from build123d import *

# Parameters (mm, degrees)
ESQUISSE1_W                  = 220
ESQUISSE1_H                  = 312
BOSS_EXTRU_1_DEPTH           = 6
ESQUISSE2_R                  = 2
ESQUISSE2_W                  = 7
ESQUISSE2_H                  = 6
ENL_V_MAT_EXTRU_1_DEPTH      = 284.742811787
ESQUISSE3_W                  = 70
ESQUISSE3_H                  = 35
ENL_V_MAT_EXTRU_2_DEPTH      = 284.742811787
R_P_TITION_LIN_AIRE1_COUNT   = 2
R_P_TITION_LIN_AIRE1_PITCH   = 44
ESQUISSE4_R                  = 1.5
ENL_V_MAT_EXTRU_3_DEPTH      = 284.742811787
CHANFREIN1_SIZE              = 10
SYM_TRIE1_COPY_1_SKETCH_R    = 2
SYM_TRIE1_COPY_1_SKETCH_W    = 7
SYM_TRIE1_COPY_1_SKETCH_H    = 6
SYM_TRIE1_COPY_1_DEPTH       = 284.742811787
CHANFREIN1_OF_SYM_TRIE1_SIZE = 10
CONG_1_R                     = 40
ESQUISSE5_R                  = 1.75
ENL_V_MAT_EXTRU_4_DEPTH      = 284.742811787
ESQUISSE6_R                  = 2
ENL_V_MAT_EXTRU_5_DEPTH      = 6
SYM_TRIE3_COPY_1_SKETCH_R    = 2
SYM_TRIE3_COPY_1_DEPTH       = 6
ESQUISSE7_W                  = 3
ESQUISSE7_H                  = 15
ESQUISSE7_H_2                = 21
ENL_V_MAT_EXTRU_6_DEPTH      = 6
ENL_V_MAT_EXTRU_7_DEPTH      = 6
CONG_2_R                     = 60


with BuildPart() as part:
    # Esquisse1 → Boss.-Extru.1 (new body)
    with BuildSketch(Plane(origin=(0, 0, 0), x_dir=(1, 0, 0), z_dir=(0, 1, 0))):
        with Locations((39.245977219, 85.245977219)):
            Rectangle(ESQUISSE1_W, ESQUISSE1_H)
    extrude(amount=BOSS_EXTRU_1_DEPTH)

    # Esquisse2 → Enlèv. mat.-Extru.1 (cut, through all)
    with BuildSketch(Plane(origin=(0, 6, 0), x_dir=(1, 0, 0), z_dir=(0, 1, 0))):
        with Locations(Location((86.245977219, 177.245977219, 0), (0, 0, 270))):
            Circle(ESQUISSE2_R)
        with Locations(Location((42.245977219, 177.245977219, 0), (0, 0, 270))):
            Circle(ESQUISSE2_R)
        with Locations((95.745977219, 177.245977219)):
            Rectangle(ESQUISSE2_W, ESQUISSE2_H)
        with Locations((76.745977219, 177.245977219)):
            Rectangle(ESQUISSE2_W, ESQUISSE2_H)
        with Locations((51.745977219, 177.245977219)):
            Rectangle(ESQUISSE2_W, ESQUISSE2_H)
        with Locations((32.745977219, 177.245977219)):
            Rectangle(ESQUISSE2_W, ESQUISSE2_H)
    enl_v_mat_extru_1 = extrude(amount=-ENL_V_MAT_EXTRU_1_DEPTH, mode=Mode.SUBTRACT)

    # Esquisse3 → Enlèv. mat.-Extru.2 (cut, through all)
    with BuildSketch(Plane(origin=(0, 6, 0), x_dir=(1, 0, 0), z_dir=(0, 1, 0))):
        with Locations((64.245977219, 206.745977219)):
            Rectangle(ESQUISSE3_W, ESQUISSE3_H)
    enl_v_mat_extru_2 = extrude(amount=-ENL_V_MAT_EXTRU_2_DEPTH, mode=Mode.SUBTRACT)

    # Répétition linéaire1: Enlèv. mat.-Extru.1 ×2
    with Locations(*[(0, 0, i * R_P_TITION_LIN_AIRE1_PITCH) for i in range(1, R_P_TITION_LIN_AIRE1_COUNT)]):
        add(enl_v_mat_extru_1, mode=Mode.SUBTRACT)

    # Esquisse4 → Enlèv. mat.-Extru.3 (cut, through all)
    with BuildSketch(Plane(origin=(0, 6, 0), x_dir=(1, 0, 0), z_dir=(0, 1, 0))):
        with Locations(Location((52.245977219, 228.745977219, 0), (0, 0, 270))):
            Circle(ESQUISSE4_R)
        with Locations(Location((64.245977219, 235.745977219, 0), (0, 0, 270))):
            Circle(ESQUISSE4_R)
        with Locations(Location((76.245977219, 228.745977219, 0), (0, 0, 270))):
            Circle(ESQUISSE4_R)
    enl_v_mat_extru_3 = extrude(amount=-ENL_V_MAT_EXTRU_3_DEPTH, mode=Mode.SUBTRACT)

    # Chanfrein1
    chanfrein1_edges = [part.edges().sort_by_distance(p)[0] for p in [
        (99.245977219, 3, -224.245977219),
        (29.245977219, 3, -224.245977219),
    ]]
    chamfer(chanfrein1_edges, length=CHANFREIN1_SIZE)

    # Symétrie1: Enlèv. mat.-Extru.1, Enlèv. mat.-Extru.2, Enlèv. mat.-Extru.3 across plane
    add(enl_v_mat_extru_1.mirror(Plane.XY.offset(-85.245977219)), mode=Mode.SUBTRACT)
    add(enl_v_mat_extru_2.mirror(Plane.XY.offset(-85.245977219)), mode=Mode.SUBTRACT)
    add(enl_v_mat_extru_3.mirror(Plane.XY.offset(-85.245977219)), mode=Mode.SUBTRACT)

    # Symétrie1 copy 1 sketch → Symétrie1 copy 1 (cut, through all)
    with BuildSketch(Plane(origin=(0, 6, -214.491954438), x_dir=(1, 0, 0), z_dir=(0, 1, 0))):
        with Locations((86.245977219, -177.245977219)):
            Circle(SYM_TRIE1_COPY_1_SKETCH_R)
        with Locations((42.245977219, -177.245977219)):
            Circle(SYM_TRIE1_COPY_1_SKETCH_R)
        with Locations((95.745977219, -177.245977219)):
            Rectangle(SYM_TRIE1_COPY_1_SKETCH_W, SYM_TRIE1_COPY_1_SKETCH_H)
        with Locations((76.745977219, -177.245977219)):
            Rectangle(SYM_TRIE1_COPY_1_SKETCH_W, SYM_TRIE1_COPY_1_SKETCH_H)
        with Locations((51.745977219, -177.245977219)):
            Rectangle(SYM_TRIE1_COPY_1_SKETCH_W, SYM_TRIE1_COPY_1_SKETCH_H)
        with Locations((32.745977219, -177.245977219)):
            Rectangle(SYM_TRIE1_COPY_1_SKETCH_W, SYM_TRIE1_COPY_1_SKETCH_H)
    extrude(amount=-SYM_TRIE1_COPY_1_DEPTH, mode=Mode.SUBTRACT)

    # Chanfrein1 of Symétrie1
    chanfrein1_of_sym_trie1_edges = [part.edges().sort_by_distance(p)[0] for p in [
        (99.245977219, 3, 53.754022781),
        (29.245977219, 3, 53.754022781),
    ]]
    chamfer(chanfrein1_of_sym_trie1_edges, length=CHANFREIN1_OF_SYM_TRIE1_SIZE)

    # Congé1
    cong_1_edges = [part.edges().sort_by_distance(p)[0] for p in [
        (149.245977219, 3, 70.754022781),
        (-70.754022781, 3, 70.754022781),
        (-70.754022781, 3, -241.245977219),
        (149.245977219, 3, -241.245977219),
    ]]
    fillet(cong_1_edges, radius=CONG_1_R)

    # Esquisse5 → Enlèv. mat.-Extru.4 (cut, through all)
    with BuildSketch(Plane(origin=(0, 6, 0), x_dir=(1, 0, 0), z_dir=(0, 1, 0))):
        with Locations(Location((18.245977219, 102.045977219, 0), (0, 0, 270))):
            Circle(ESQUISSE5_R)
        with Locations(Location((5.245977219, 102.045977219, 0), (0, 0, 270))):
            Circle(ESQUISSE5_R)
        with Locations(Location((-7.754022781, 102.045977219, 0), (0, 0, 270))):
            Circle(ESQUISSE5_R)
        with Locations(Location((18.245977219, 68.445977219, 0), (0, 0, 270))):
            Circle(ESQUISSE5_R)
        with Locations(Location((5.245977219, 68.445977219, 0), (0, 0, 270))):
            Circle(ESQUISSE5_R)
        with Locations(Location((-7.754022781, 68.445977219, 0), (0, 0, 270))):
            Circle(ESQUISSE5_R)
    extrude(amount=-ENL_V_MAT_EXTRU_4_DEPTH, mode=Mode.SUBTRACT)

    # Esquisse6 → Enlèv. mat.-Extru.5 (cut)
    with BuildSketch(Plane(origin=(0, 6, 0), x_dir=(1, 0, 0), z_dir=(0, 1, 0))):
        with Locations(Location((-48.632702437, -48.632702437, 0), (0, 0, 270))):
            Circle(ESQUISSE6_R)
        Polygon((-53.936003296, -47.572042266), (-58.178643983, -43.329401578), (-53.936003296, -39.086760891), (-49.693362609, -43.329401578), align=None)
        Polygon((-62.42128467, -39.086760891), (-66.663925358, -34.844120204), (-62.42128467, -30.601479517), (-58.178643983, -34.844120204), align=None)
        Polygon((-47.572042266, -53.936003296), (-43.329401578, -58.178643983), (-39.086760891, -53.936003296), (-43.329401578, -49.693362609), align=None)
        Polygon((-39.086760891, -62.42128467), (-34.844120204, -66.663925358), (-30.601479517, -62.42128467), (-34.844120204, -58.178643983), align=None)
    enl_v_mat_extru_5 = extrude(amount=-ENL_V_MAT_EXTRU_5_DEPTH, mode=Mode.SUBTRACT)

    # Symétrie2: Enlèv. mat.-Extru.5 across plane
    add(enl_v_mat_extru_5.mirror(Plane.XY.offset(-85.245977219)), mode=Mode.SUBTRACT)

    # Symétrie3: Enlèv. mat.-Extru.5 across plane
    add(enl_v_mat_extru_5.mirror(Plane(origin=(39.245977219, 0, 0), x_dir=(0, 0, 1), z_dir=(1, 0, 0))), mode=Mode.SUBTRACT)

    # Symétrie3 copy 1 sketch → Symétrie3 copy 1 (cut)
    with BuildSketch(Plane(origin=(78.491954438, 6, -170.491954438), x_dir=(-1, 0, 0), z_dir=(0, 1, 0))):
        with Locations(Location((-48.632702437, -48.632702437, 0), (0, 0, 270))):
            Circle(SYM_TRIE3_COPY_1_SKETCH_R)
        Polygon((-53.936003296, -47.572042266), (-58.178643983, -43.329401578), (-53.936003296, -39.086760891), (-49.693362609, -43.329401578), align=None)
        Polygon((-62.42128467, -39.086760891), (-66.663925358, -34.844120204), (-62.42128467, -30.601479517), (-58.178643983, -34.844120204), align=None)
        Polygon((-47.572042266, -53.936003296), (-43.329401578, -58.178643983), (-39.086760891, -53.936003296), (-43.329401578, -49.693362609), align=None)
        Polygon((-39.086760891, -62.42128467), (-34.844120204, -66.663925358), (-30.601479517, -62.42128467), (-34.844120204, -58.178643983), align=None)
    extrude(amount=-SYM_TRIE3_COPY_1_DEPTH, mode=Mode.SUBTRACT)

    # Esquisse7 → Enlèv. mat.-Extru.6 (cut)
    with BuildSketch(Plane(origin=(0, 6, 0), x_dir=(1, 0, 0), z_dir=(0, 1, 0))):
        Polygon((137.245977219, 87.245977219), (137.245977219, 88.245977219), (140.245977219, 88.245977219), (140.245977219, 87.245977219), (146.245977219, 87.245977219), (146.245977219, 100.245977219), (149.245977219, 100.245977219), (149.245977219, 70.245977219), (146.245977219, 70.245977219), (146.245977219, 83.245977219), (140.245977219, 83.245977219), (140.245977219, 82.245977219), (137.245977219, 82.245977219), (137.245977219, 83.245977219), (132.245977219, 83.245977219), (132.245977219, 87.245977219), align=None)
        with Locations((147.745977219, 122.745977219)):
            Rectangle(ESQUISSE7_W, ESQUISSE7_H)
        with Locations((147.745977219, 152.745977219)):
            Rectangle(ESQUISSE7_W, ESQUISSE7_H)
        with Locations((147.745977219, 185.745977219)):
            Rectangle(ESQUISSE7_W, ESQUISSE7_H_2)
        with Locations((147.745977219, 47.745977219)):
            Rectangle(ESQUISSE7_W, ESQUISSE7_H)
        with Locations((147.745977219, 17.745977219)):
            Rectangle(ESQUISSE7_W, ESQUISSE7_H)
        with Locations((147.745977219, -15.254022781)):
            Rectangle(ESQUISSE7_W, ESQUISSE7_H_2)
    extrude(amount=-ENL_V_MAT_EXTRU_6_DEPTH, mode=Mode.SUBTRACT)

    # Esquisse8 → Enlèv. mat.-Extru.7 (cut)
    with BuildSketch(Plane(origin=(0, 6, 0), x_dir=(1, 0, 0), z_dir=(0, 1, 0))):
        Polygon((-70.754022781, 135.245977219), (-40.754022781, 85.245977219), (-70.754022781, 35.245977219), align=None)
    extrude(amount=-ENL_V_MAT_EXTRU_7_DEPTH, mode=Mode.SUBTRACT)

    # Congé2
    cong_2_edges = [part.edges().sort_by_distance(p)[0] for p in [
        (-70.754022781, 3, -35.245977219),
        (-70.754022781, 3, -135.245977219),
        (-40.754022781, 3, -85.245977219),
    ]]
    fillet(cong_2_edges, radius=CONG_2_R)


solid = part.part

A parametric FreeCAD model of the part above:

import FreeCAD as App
import Part
import Sketcher
from FreeCAD import Vector
Q = App.Units.Quantity


def edges_at(feature, points):
    """Names of the edges that pass closest to the given points."""
    edges = feature.Shape.Edges
    near = lambda p: min(range(len(edges)), key=lambda i: edges[i].distToShape(Part.Vertex(*p))[0])
    return sorted({f"Edge{near(p) + 1}" for p in points})

doc = App.newDocument("Part")
body = doc.addObject("PartDesign::Body", "Body")

sketch1 = body.newObject("Sketcher::SketchObject", "Sketch")
sketch1.AttachmentSupport = (doc.getObject("XZ_Plane"), [""])
sketch1.MapMode = "FlatFace"
sketch1.addGeometry([
    Part.LineSegment(Vector(-71, -241, 0), Vector(-71, 71, 0)),
    Part.LineSegment(Vector(-71, 71, 0), Vector(149, 71, 0)),
    Part.LineSegment(Vector(149, 71, 0), Vector(149, -241, 0)),
    Part.LineSegment(Vector(149, -241, 0), Vector(-71, -241, 0)),
], False)
sketch1.addConstraint([
    Sketcher.Constraint("Coincident", 0, 2, 1, 1),
    Sketcher.Constraint("Coincident", 1, 2, 2, 1),
    Sketcher.Constraint("Coincident", 2, 2, 3, 1),
    Sketcher.Constraint("Coincident", 3, 2, 0, 1),
    Sketcher.Constraint("Vertical", 0),
    Sketcher.Constraint("Horizontal", 1),
    Sketcher.Constraint("Vertical", 2),
    Sketcher.Constraint("Horizontal", 3),
    Sketcher.Constraint("DistanceX", 1, 1, 1, 2, Q("220 mm")),
    Sketcher.Constraint("DistanceY", 0, 1, 0, 2, Q("312 mm")),
    Sketcher.Constraint("DistanceX", 0, 2, -1, 1, Q("70.754023 mm")),
    Sketcher.Constraint("DistanceY", -1, 1, 0, 2, Q("70.754023 mm")),
])
pad1 = body.newObject("PartDesign::Pad", "Pad")
pad1.Profile = sketch1
pad1.Length = 6
pad1.Reversed = True

sketch2 = body.newObject("Sketcher::SketchObject", "Sketch001")
sketch2.AttachmentSupport = (doc.getObject("XZ_Plane"), [""])
sketch2.MapMode = "FlatFace"
sketch2.AttachmentOffset = App.Placement(Vector(0, 0, -6), App.Rotation())
sketch2.addGeometry([
    Part.Circle(Vector(86.2, -177.2, 0), Vector(0, 0, 1), 2),
    Part.Circle(Vector(42.2, -177.2, 0), Vector(0, 0, 1), 2),
    Part.LineSegment(Vector(92.2, -180.2, 0), Vector(92.2, -174.2, 0)),
    Part.LineSegment(Vector(92.2, -174.2, 0), Vector(99.2, -174.2, 0)),
    Part.LineSegment(Vector(99.2, -174.2, 0), Vector(99.2, -180.2, 0)),
    Part.LineSegment(Vector(99.2, -180.2, 0), Vector(92.2, -180.2, 0)),
    Part.LineSegment(Vector(73.2, -180.2, 0), Vector(73.2, -174.2, 0)),
    Part.LineSegment(Vector(73.2, -174.2, 0), Vector(80.2, -174.2, 0)),
    Part.LineSegment(Vector(80.2, -174.2, 0), Vector(80.2, -180.2, 0)),
    Part.LineSegment(Vector(80.2, -180.2, 0), Vector(73.2, -180.2, 0)),
    Part.LineSegment(Vector(48.2, -180.2, 0), Vector(48.2, -174.2, 0)),
    Part.LineSegment(Vector(48.2, -174.2, 0), Vector(55.2, -174.2, 0)),
    Part.LineSegment(Vector(55.2, -174.2, 0), Vector(55.2, -180.2, 0)),
    Part.LineSegment(Vector(55.2, -180.2, 0), Vector(48.2, -180.2, 0)),
    Part.LineSegment(Vector(29.2, -180.2, 0), Vector(29.2, -174.2, 0)),
    Part.LineSegment(Vector(29.2, -174.2, 0), Vector(36.2, -174.2, 0)),
    Part.LineSegment(Vector(36.2, -174.2, 0), Vector(36.2, -180.2, 0)),
    Part.LineSegment(Vector(36.2, -180.2, 0), Vector(29.2, -180.2, 0)),
], False)
sketch2.addConstraint([
    Sketcher.Constraint("Coincident", 2, 2, 3, 1),
    Sketcher.Constraint("Coincident", 3, 2, 4, 1),
    Sketcher.Constraint("Coincident", 4, 2, 5, 1),
    Sketcher.Constraint("Coincident", 5, 2, 2, 1),
    Sketcher.Constraint("Coincident", 6, 2, 7, 1),
    Sketcher.Constraint("Coincident", 7, 2, 8, 1),
    Sketcher.Constraint("Coincident", 8, 2, 9, 1),
    Sketcher.Constraint("Coincident", 9, 2, 6, 1),
    Sketcher.Constraint("Coincident", 10, 2, 11, 1),
    Sketcher.Constraint("Coincident", 11, 2, 12, 1),
    Sketcher.Constraint("Coincident", 12, 2, 13, 1),
    Sketcher.Constraint("Coincident", 13, 2, 10, 1),
    Sketcher.Constraint("Coincident", 14, 2, 15, 1),
    Sketcher.Constraint("Coincident", 15, 2, 16, 1),
    Sketcher.Constraint("Coincident", 16, 2, 17, 1),
    Sketcher.Constraint("Coincident", 17, 2, 14, 1),
    Sketcher.Constraint("Vertical", 2),
    Sketcher.Constraint("Horizontal", 3),
    Sketcher.Constraint("Vertical", 4),
    Sketcher.Constraint("Horizontal", 5),
    Sketcher.Constraint("Vertical", 6),
    Sketcher.Constraint("Horizontal", 7),
    Sketcher.Constraint("Vertical", 8),
    Sketcher.Constraint("Horizontal", 9),
    Sketcher.Constraint("Vertical", 10),
    Sketcher.Constraint("Horizontal", 11),
    Sketcher.Constraint("Vertical", 12),
    Sketcher.Constraint("Horizontal", 13),
    Sketcher.Constraint("Vertical", 14),
    Sketcher.Constraint("Horizontal", 15),
    Sketcher.Constraint("Vertical", 16),
    Sketcher.Constraint("Horizontal", 17),
    Sketcher.Constraint("Equal", 0, 1),
    Sketcher.Constraint("Horizontal", 0, 3, 1, 3),
    Sketcher.Constraint("Horizontal", 3, 2, 6, 2),
    Sketcher.Constraint("Horizontal", 5, 2, 8, 2),
    Sketcher.Constraint("Horizontal", 7, 2, 10, 2),
    Sketcher.Constraint("Horizontal", 9, 2, 12, 2),
    Sketcher.Constraint("Horizontal", 11, 2, 14, 2),
    Sketcher.Constraint("Horizontal", 13, 2, 16, 2),
    Sketcher.Constraint("Equal", 5, 7),
    Sketcher.Constraint("Equal", 9, 11),
    Sketcher.Constraint("Equal", 13, 15),
    Sketcher.Constraint("Diameter", 0, Q("4 mm")),
    Sketcher.Constraint("DistanceX", 3, 1, 3, 2, Q("7 mm")),
    Sketcher.Constraint("DistanceY", 2, 1, 2, 2, Q("6 mm")),
    Sketcher.Constraint("DistanceX", 1, 3, 0, 3, Q("44 mm")),
    Sketcher.Constraint("DistanceX", 0, 3, 2, 2, Q("6 mm")),
    Sketcher.Constraint("DistanceY", 0, 3, 2, 2, Q("3 mm")),
    Sketcher.Constraint("DistanceX", 6, 2, 0, 3, Q("13 mm")),
    Sketcher.Constraint("DistanceX", 1, 3, 10, 2, Q("6 mm")),
    Sketcher.Constraint("DistanceX", 14, 2, 1, 3, Q("13 mm")),
    Sketcher.Constraint("DistanceX", -1, 1, 0, 3, Q("86.245977 mm")),
    Sketcher.Constraint("DistanceY", 0, 3, -1, 1, Q("177.245977 mm")),
])
pocket1 = body.newObject("PartDesign::Pocket", "Pocket")
pocket1.Profile = sketch2
pocket1.Type = "ThroughAll"
pocket1.Reversed = True

sketch3 = body.newObject("Sketcher::SketchObject", "Sketch002")
sketch3.AttachmentSupport = (doc.getObject("XZ_Plane"), [""])
sketch3.MapMode = "FlatFace"
sketch3.AttachmentOffset = App.Placement(Vector(0, 0, -6), App.Rotation())
sketch3.addGeometry([
    Part.LineSegment(Vector(29, -224, 0), Vector(29, -189, 0)),
    Part.LineSegment(Vector(29, -189, 0), Vector(99, -189, 0)),
    Part.LineSegment(Vector(99, -189, 0), Vector(99, -224, 0)),
    Part.LineSegment(Vector(99, -224, 0), Vector(29, -224, 0)),
], False)
sketch3.addConstraint([
    Sketcher.Constraint("Coincident", 0, 2, 1, 1),
    Sketcher.Constraint("Coincident", 1, 2, 2, 1),
    Sketcher.Constraint("Coincident", 2, 2, 3, 1),
    Sketcher.Constraint("Coincident", 3, 2, 0, 1),
    Sketcher.Constraint("Vertical", 0),
    Sketcher.Constraint("Horizontal", 1),
    Sketcher.Constraint("Vertical", 2),
    Sketcher.Constraint("Horizontal", 3),
    Sketcher.Constraint("DistanceX", 1, 1, 1, 2, Q("70 mm")),
    Sketcher.Constraint("DistanceY", 0, 1, 0, 2, Q("35 mm")),
    Sketcher.Constraint("DistanceX", -1, 1, 0, 2, Q("29.245977 mm")),
    Sketcher.Constraint("DistanceY", 0, 2, -1, 1, Q("189.245977 mm")),
])
pocket2 = body.newObject("PartDesign::Pocket", "Pocket001")
pocket2.Profile = sketch3
pocket2.Type = "ThroughAll"
pocket2.Reversed = True
doc.recompute()

linearpattern = body.newObject("PartDesign::LinearPattern", "LinearPattern")
linearpattern.Originals = [pocket1]
linearpattern.Direction = (doc.getObject("Z_Axis"), [""])
linearpattern.Mode = "offset"
linearpattern.Offset = 44
linearpattern.Occurrences = 2
body.Tip = linearpattern

sketch4 = body.newObject("Sketcher::SketchObject", "Sketch003")
sketch4.AttachmentSupport = (doc.getObject("XZ_Plane"), [""])
sketch4.MapMode = "FlatFace"
sketch4.AttachmentOffset = App.Placement(Vector(0, 0, -6), App.Rotation())
sketch4.addGeometry([
    Part.Circle(Vector(52.2, -228.7, 0), Vector(0, 0, 1), 1.5),
    Part.Circle(Vector(64.2, -235.7, 0), Vector(0, 0, 1), 1.5),
    Part.Circle(Vector(76.2, -228.7, 0), Vector(0, 0, 1), 1.5),
], False)
sketch4.addConstraint([
    Sketcher.Constraint("Equal", 0, 1),
    Sketcher.Constraint("Equal", 1, 2),
    Sketcher.Constraint("Horizontal", 0, 3, 2, 3),
    Sketcher.Constraint("Diameter", 0, Q("3 mm")),
    Sketcher.Constraint("DistanceX", 0, 3, 1, 3, Q("12 mm")),
    Sketcher.Constraint("DistanceY", 1, 3, 0, 3, Q("7 mm")),
    Sketcher.Constraint("DistanceX", 1, 3, 2, 3, Q("12 mm")),
    Sketcher.Constraint("DistanceX", -1, 1, 0, 3, Q("52.245977 mm")),
    Sketcher.Constraint("DistanceY", 0, 3, -1, 1, Q("228.745977 mm")),
])
pocket3 = body.newObject("PartDesign::Pocket", "Pocket002")
pocket3.Profile = sketch4
pocket3.Type = "ThroughAll"
pocket3.Reversed = True
doc.recompute()

chamfer = body.newObject("PartDesign::Chamfer", "Chamfer")
chamfer.Base = (pocket3, edges_at(pocket3, [(99.246, 3, -224.246), (29.246, 3, -224.246)]))
chamfer.Size = 10
doc.recompute()

datumplane = body.newObject("PartDesign::Plane", "DatumPlane")
datumplane.AttachmentSupport = (doc.getObject("XY_Plane"), [""])
datumplane.MapMode = "FlatFace"
datumplane.AttachmentOffset = App.Placement(Vector(0, 0, -85.245977), App.Rotation())
mirrored = body.newObject("PartDesign::Mirrored", "Mirrored")
mirrored.Originals = [pocket1, pocket2, pocket3]
mirrored.MirrorPlane = (datumplane, [""])
body.Tip = mirrored

sketch5 = body.newObject("Sketcher::SketchObject", "Sketch004")
sketch5.AttachmentSupport = (doc.getObject("XZ_Plane"), [""])
sketch5.MapMode = "FlatFace"
sketch5.AttachmentOffset = App.Placement(Vector(0, 0, -6), App.Rotation())
sketch5.addGeometry([
    Part.Circle(Vector(86.2, -37.2, 0), Vector(0, 0, 1), 2),
    Part.Circle(Vector(42.2, -37.2, 0), Vector(0, 0, 1), 2),
    Part.LineSegment(Vector(92.2, -40.2, 0), Vector(92.2, -34.2, 0)),
    Part.LineSegment(Vector(92.2, -34.2, 0), Vector(99.2, -34.2, 0)),
    Part.LineSegment(Vector(99.2, -34.2, 0), Vector(99.2, -40.2, 0)),
    Part.LineSegment(Vector(99.2, -40.2, 0), Vector(92.2, -40.2, 0)),
    Part.LineSegment(Vector(73.2, -40.2, 0), Vector(73.2, -34.2, 0)),
    Part.LineSegment(Vector(73.2, -34.2, 0), Vector(80.2, -34.2, 0)),
    Part.LineSegment(Vector(80.2, -34.2, 0), Vector(80.2, -40.2, 0)),
    Part.LineSegment(Vector(80.2, -40.2, 0), Vector(73.2, -40.2, 0)),
    Part.LineSegment(Vector(48.2, -40.2, 0), Vector(48.2, -34.2, 0)),
    Part.LineSegment(Vector(48.2, -34.2, 0), Vector(55.2, -34.2, 0)),
    Part.LineSegment(Vector(55.2, -34.2, 0), Vector(55.2, -40.2, 0)),
    Part.LineSegment(Vector(55.2, -40.2, 0), Vector(48.2, -40.2, 0)),
    Part.LineSegment(Vector(29.2, -40.2, 0), Vector(29.2, -34.2, 0)),
    Part.LineSegment(Vector(29.2, -34.2, 0), Vector(36.2, -34.2, 0)),
    Part.LineSegment(Vector(36.2, -34.2, 0), Vector(36.2, -40.2, 0)),
    Part.LineSegment(Vector(36.2, -40.2, 0), Vector(29.2, -40.2, 0)),
], False)
sketch5.addConstraint([
    Sketcher.Constraint("Coincident", 2, 2, 3, 1),
    Sketcher.Constraint("Coincident", 3, 2, 4, 1),
    Sketcher.Constraint("Coincident", 4, 2, 5, 1),
    Sketcher.Constraint("Coincident", 5, 2, 2, 1),
    Sketcher.Constraint("Coincident", 6, 2, 7, 1),
    Sketcher.Constraint("Coincident", 7, 2, 8, 1),
    Sketcher.Constraint("Coincident", 8, 2, 9, 1),
    Sketcher.Constraint("Coincident", 9, 2, 6, 1),
    Sketcher.Constraint("Coincident", 10, 2, 11, 1),
    Sketcher.Constraint("Coincident", 11, 2, 12, 1),
    Sketcher.Constraint("Coincident", 12, 2, 13, 1),
    Sketcher.Constraint("Coincident", 13, 2, 10, 1),
    Sketcher.Constraint("Coincident", 14, 2, 15, 1),
    Sketcher.Constraint("Coincident", 15, 2, 16, 1),
    Sketcher.Constraint("Coincident", 16, 2, 17, 1),
    Sketcher.Constraint("Coincident", 17, 2, 14, 1),
    Sketcher.Constraint("Vertical", 2),
    Sketcher.Constraint("Horizontal", 3),
    Sketcher.Constraint("Vertical", 4),
    Sketcher.Constraint("Horizontal", 5),
    Sketcher.Constraint("Vertical", 6),
    Sketcher.Constraint("Horizontal", 7),
    Sketcher.Constraint("Vertical", 8),
    Sketcher.Constraint("Horizontal", 9),
    Sketcher.Constraint("Vertical", 10),
    Sketcher.Constraint("Horizontal", 11),
    Sketcher.Constraint("Vertical", 12),
    Sketcher.Constraint("Horizontal", 13),
    Sketcher.Constraint("Vertical", 14),
    Sketcher.Constraint("Horizontal", 15),
    Sketcher.Constraint("Vertical", 16),
    Sketcher.Constraint("Horizontal", 17),
    Sketcher.Constraint("Equal", 0, 1),
    Sketcher.Constraint("Horizontal", 0, 3, 1, 3),
    Sketcher.Constraint("Horizontal", 3, 2, 6, 2),
    Sketcher.Constraint("Horizontal", 5, 2, 8, 2),
    Sketcher.Constraint("Horizontal", 7, 2, 10, 2),
    Sketcher.Constraint("Horizontal", 9, 2, 12, 2),
    Sketcher.Constraint("Horizontal", 11, 2, 14, 2),
    Sketcher.Constraint("Horizontal", 13, 2, 16, 2),
    Sketcher.Constraint("Equal", 5, 7),
    Sketcher.Constraint("Equal", 9, 11),
    Sketcher.Constraint("Equal", 13, 15),
    Sketcher.Constraint("Diameter", 0, Q("4 mm")),
    Sketcher.Constraint("DistanceX", 3, 1, 3, 2, Q("7 mm")),
    Sketcher.Constraint("DistanceY", 2, 1, 2, 2, Q("6 mm")),
    Sketcher.Constraint("DistanceX", 1, 3, 0, 3, Q("44 mm")),
    Sketcher.Constraint("DistanceX", 0, 3, 2, 2, Q("6 mm")),
    Sketcher.Constraint("DistanceY", 0, 3, 2, 2, Q("3 mm")),
    Sketcher.Constraint("DistanceX", 6, 2, 0, 3, Q("13 mm")),
    Sketcher.Constraint("DistanceX", 1, 3, 10, 2, Q("6 mm")),
    Sketcher.Constraint("DistanceX", 14, 2, 1, 3, Q("13 mm")),
    Sketcher.Constraint("DistanceX", -1, 1, 0, 3, Q("86.245977 mm")),
    Sketcher.Constraint("DistanceY", 0, 3, -1, 1, Q("37.245977 mm")),
])
pocket4 = body.newObject("PartDesign::Pocket", "Pocket003")
pocket4.Profile = sketch5
pocket4.Type = "ThroughAll"
pocket4.Reversed = True
doc.recompute()

chamfer2 = body.newObject("PartDesign::Chamfer", "Chamfer001")
chamfer2.Base = (pocket4, edges_at(pocket4, [(99.246, 3, 53.754), (29.246, 3, 53.754)]))
chamfer2.Size = 10
doc.recompute()

fillet = body.newObject("PartDesign::Fillet", "Fillet")
fillet.Base = (chamfer2, edges_at(chamfer2, [
    (149.246, 3, 70.754),
    (-70.754, 3, 70.754),
    (-70.754, 3, -241.246),
    (149.246, 3, -241.246),
]))
fillet.Radius = 40

sketch6 = body.newObject("Sketcher::SketchObject", "Sketch005")
sketch6.AttachmentSupport = (doc.getObject("XZ_Plane"), [""])
sketch6.MapMode = "FlatFace"
sketch6.AttachmentOffset = App.Placement(Vector(0, 0, -6), App.Rotation())
sketch6.addGeometry([
    Part.Circle(Vector(18.2, -102, 0), Vector(0, 0, 1), 1.8),
    Part.Circle(Vector(5.2, -102, 0), Vector(0, 0, 1), 1.8),
    Part.Circle(Vector(-7.8, -102, 0), Vector(0, 0, 1), 1.8),
    Part.Circle(Vector(18.2, -68.4, 0), Vector(0, 0, 1), 1.8),
    Part.Circle(Vector(5.2, -68.4, 0), Vector(0, 0, 1), 1.8),
    Part.Circle(Vector(-7.8, -68.4, 0), Vector(0, 0, 1), 1.8),
], False)
sketch6.addConstraint([
    Sketcher.Constraint("Equal", 0, 1),
    Sketcher.Constraint("Equal", 1, 2),
    Sketcher.Constraint("Equal", 2, 3),
    Sketcher.Constraint("Equal", 3, 4),
    Sketcher.Constraint("Equal", 4, 5),
    Sketcher.Constraint("Horizontal", 0, 3, 1, 3),
    Sketcher.Constraint("Horizontal", 1, 3, 2, 3),
    Sketcher.Constraint("Horizontal", 3, 3, 4, 3),
    Sketcher.Constraint("Horizontal", 4, 3, 5, 3),
    Sketcher.Constraint("Vertical", 0, 3, 3, 3),
    Sketcher.Constraint("Vertical", 1, 3, 4, 3),
    Sketcher.Constraint("Vertical", 2, 3, 5, 3),
    Sketcher.Constraint("Diameter", 0, Q("3.5 mm")),
    Sketcher.Constraint("DistanceX", 1, 3, 0, 3, Q("13 mm")),
    Sketcher.Constraint("DistanceX", 2, 3, 1, 3, Q("13 mm")),
    Sketcher.Constraint("DistanceY", 0, 3, 3, 3, Q("33.6 mm")),
    Sketcher.Constraint("DistanceX", -1, 1, 0, 3, Q("18.245977 mm")),
    Sketcher.Constraint("DistanceY", 0, 3, -1, 1, Q("102.045977 mm")),
])
pocket5 = body.newObject("PartDesign::Pocket", "Pocket004")
pocket5.Profile = sketch6
pocket5.Type = "ThroughAll"
pocket5.Reversed = True

sketch7 = body.newObject("Sketcher::SketchObject", "Sketch006")
sketch7.AttachmentSupport = (doc.getObject("XZ_Plane"), [""])
sketch7.MapMode = "FlatFace"
sketch7.AttachmentOffset = App.Placement(Vector(0, 0, -6), App.Rotation())
sketch7.addGeometry([
    Part.Circle(Vector(-48.6, 48.6, 0), Vector(0, 0, 1), 2),
    Part.LineSegment(Vector(-58.2, 43.3, 0), Vector(-53.9, 47.6, 0)),
    Part.LineSegment(Vector(-53.9, 47.6, 0), Vector(-49.7, 43.3, 0)),
    Part.LineSegment(Vector(-49.7, 43.3, 0), Vector(-53.9, 39.1, 0)),
    Part.LineSegment(Vector(-53.9, 39.1, 0), Vector(-58.2, 43.3, 0)),
    Part.LineSegment(Vector(-66.7, 34.8, 0), Vector(-62.4, 39.1, 0)),
    Part.LineSegment(Vector(-62.4, 39.1, 0), Vector(-58.2, 34.8, 0)),
    Part.LineSegment(Vector(-58.2, 34.8, 0), Vector(-62.4, 30.6, 0)),
    Part.LineSegment(Vector(-62.4, 30.6, 0), Vector(-66.7, 34.8, 0)),
    Part.LineSegment(Vector(-47.6, 53.9, 0), Vector(-43.3, 58.2, 0)),
    Part.LineSegment(Vector(-43.3, 58.2, 0), Vector(-39.1, 53.9, 0)),
    Part.LineSegment(Vector(-39.1, 53.9, 0), Vector(-43.3, 49.7, 0)),
    Part.LineSegment(Vector(-43.3, 49.7, 0), Vector(-47.6, 53.9, 0)),
    Part.LineSegment(Vector(-39.1, 62.4, 0), Vector(-34.8, 66.7, 0)),
    Part.LineSegment(Vector(-34.8, 66.7, 0), Vector(-30.6, 62.4, 0)),
    Part.LineSegment(Vector(-30.6, 62.4, 0), Vector(-34.8, 58.2, 0)),
    Part.LineSegment(Vector(-34.8, 58.2, 0), Vector(-39.1, 62.4, 0)),
], False)
sketch7.addConstraint([
    Sketcher.Constraint("Coincident", 1, 2, 2, 1),
    Sketcher.Constraint("Coincident", 2, 2, 3, 1),
    Sketcher.Constraint("Coincident", 3, 2, 4, 1),
    Sketcher.Constraint("Coincident", 4, 2, 1, 1),
    Sketcher.Constraint("Coincident", 5, 2, 6, 1),
    Sketcher.Constraint("Coincident", 6, 2, 7, 1),
    Sketcher.Constraint("Coincident", 7, 2, 8, 1),
    Sketcher.Constraint("Coincident", 8, 2, 5, 1),
    Sketcher.Constraint("Coincident", 9, 2, 10, 1),
    Sketcher.Constraint("Coincident", 10, 2, 11, 1),
    Sketcher.Constraint("Coincident", 11, 2, 12, 1),
    Sketcher.Constraint("Coincident", 12, 2, 9, 1),
    Sketcher.Constraint("Coincident", 13, 2, 14, 1),
    Sketcher.Constraint("Coincident", 14, 2, 15, 1),
    Sketcher.Constraint("Coincident", 15, 2, 16, 1),
    Sketcher.Constraint("Coincident", 16, 2, 13, 1),
    Sketcher.Constraint("Perpendicular", 1, 2),
    Sketcher.Constraint("Perpendicular", 2, 3),
    Sketcher.Constraint("Perpendicular", 3, 4),
    Sketcher.Constraint("Perpendicular", 4, 5),
    Sketcher.Constraint("Perpendicular", 5, 6),
    Sketcher.Constraint("Perpendicular", 6, 7),
    Sketcher.Constraint("Perpendicular", 7, 8),
    Sketcher.Constraint("Perpendicular", 8, 9),
    Sketcher.Constraint("Perpendicular", 9, 10),
    Sketcher.Constraint("Perpendicular", 10, 11),
    Sketcher.Constraint("Perpendicular", 11, 12),
    Sketcher.Constraint("Perpendicular", 12, 13),
    Sketcher.Constraint("Perpendicular", 13, 14),
    Sketcher.Constraint("Perpendicular", 14, 15),
    Sketcher.Constraint("Perpendicular", 15, 16),
    Sketcher.Constraint("Horizontal", 2, 2, 4, 2),
    Sketcher.Constraint("Horizontal", 3, 2, 5, 2),
    Sketcher.Constraint("Horizontal", 6, 2, 8, 2),
    Sketcher.Constraint("Horizontal", 10, 2, 12, 2),
    Sketcher.Constraint("Horizontal", 9, 2, 15, 2),
    Sketcher.Constraint("Horizontal", 14, 2, 16, 2),
    Sketcher.Constraint("Vertical", 1, 2, 3, 2),
    Sketcher.Constraint("Vertical", 4, 2, 6, 2),
    Sketcher.Constraint("Vertical", 10, 2, 16, 2),
    Sketcher.Constraint("Equal", 4, 5),
    Sketcher.Constraint("Equal", 8, 9),
    Sketcher.Constraint("Equal", 12, 13),
    Sketcher.Constraint("Diameter", 0, Q("4 mm")),
    Sketcher.Constraint("Distance", 1, Q("6 mm")),
    Sketcher.Constraint("DistanceY", -1, 1, 2, 2, Q("43.329402 mm")),
    Sketcher.Constraint("DistanceX", 9, 2, -1, 1, Q("43.329402 mm")),
    Sketcher.Constraint("DistanceX", 1, 2, 0, 3, Q("5.303301 mm")),
    Sketcher.Constraint("DistanceY", 2, 2, 0, 3, Q("5.303301 mm")),
    Sketcher.Constraint("DistanceX", 0, 3, 9, 2, Q("5.303301 mm")),
    Sketcher.Constraint("DistanceY", 1, 2, 9, 2, Q("10.606602 mm")),
])
pocket6 = body.newObject("PartDesign::Pocket", "Pocket005")
pocket6.Profile = sketch7
pocket6.Length = 6
pocket6.Reversed = True
doc.recompute()

datumplane2 = body.newObject("PartDesign::Plane", "DatumPlane001")
datumplane2.AttachmentSupport = (doc.getObject("XY_Plane"), [""])
datumplane2.MapMode = "FlatFace"
datumplane2.AttachmentOffset = App.Placement(Vector(0, 0, -85.245977), App.Rotation())
mirrored2 = body.newObject("PartDesign::Mirrored", "Mirrored001")
mirrored2.Originals = [pocket6]
mirrored2.MirrorPlane = (datumplane2, [""])
body.Tip = mirrored2
doc.recompute()

datumplane3 = body.newObject("PartDesign::Plane", "DatumPlane002")
datumplane3.AttachmentSupport = (doc.getObject("YZ_Plane"), [""])
datumplane3.MapMode = "FlatFace"
datumplane3.AttachmentOffset = App.Placement(Vector(0, 0, 39.245977), App.Rotation())
mirrored3 = body.newObject("PartDesign::Mirrored", "Mirrored002")
mirrored3.Originals = [pocket6]
mirrored3.MirrorPlane = (datumplane3, [""])
body.Tip = mirrored3

sketch8 = body.newObject("Sketcher::SketchObject", "Sketch007")
sketch8.AttachmentSupport = (doc.getObject("XZ_Plane"), [""])
sketch8.MapMode = "FlatFace"
sketch8.AttachmentOffset = App.Placement(Vector(0, 0, -6), App.Rotation())
sketch8.addGeometry([
    Part.Circle(Vector(127.1, -219.1, 0), Vector(0, 0, 1), 2),
    Part.LineSegment(Vector(136.7, -213.8, 0), Vector(132.4, -218.1, 0)),
    Part.LineSegment(Vector(132.4, -218.1, 0), Vector(128.2, -213.8, 0)),
    Part.LineSegment(Vector(128.2, -213.8, 0), Vector(132.4, -209.6, 0)),
    Part.LineSegment(Vector(132.4, -209.6, 0), Vector(136.7, -213.8, 0)),
    Part.LineSegment(Vector(145.2, -205.3, 0), Vector(140.9, -209.6, 0)),
    Part.LineSegment(Vector(140.9, -209.6, 0), Vector(136.7, -205.3, 0)),
    Part.LineSegment(Vector(136.7, -205.3, 0), Vector(140.9, -201.1, 0)),
    Part.LineSegment(Vector(140.9, -201.1, 0), Vector(145.2, -205.3, 0)),
    Part.LineSegment(Vector(126.1, -224.4, 0), Vector(121.8, -228.7, 0)),
    Part.LineSegment(Vector(121.8, -228.7, 0), Vector(117.6, -224.4, 0)),
    Part.LineSegment(Vector(117.6, -224.4, 0), Vector(121.8, -220.2, 0)),
    Part.LineSegment(Vector(121.8, -220.2, 0), Vector(126.1, -224.4, 0)),
    Part.LineSegment(Vector(117.6, -232.9, 0), Vector(113.3, -237.2, 0)),
    Part.LineSegment(Vector(113.3, -237.2, 0), Vector(109.1, -232.9, 0)),
    Part.LineSegment(Vector(109.1, -232.9, 0), Vector(113.3, -228.7, 0)),
    Part.LineSegment(Vector(113.3, -228.7, 0), Vector(117.6, -232.9, 0)),
], False)
sketch8.addConstraint([
    Sketcher.Constraint("Coincident", 1, 2, 2, 1),
    Sketcher.Constraint("Coincident", 2, 2, 3, 1),
    Sketcher.Constraint("Coincident", 3, 2, 4, 1),
    Sketcher.Constraint("Coincident", 4, 2, 1, 1),
    Sketcher.Constraint("Coincident", 5, 2, 6, 1),
    Sketcher.Constraint("Coincident", 6, 2, 7, 1),
    Sketcher.Constraint("Coincident", 7, 2, 8, 1),
    Sketcher.Constraint("Coincident", 8, 2, 5, 1),
    Sketcher.Constraint("Coincident", 9, 2, 10, 1),
    Sketcher.Constraint("Coincident", 10, 2, 11, 1),
    Sketcher.Constraint("Coincident", 11, 2, 12, 1),
    Sketcher.Constraint("Coincident", 12, 2, 9, 1),
    Sketcher.Constraint("Coincident", 13, 2, 14, 1),
    Sketcher.Constraint("Coincident", 14, 2, 15, 1),
    Sketcher.Constraint("Coincident", 15, 2, 16, 1),
    Sketcher.Constraint("Coincident", 16, 2, 13, 1),
    Sketcher.Constraint("Perpendicular", 1, 2),
    Sketcher.Constraint("Perpendicular", 2, 3),
    Sketcher.Constraint("Perpendicular", 3, 4),
    Sketcher.Constraint("Perpendicular", 4, 5),
    Sketcher.Constraint("Perpendicular", 5, 6),
    Sketcher.Constraint("Perpendicular", 6, 7),
    Sketcher.Constraint("Perpendicular", 7, 8),
    Sketcher.Constraint("Perpendicular", 8, 9),
    Sketcher.Constraint("Perpendicular", 9, 10),
    Sketcher.Constraint("Perpendicular", 10, 11),
    Sketcher.Constraint("Perpendicular", 11, 12),
    Sketcher.Constraint("Perpendicular", 12, 13),
    Sketcher.Constraint("Perpendicular", 13, 14),
    Sketcher.Constraint("Perpendicular", 14, 15),
    Sketcher.Constraint("Perpendicular", 15, 16),
    Sketcher.Constraint("Horizontal", 2, 2, 4, 2),
    Sketcher.Constraint("Horizontal", 3, 2, 5, 2),
    Sketcher.Constraint("Horizontal", 6, 2, 8, 2),
    Sketcher.Constraint("Horizontal", 10, 2, 12, 2),
    Sketcher.Constraint("Horizontal", 9, 2, 15, 2),
    Sketcher.Constraint("Horizontal", 14, 2, 16, 2),
    Sketcher.Constraint("Vertical", 1, 2, 3, 2),
    Sketcher.Constraint("Vertical", 4, 2, 6, 2),
    Sketcher.Constraint("Vertical", 10, 2, 16, 2),
    Sketcher.Constraint("Equal", 4, 5),
    Sketcher.Constraint("Equal", 8, 9),
    Sketcher.Constraint("Equal", 12, 13),
    Sketcher.Constraint("Diameter", 0, Q("4 mm")),
    Sketcher.Constraint("Distance", 1, Q("6 mm")),
    Sketcher.Constraint("DistanceX", -1, 1, 4, 2, Q("136.670598 mm")),
    Sketcher.Constraint("DistanceY", 9, 2, -1, 1, Q("228.670598 mm")),
    Sketcher.Constraint("DistanceX", 0, 3, 1, 2, Q("5.303301 mm")),
    Sketcher.Constraint("DistanceY", 0, 3, 2, 2, Q("5.303301 mm")),
    Sketcher.Constraint("DistanceX", 9, 2, 0, 3, Q("5.303301 mm")),
    Sketcher.Constraint("DistanceY", 9, 2, 1, 2, Q("10.606602 mm")),
])
pocket7 = body.newObject("PartDesign::Pocket", "Pocket006")
pocket7.Profile = sketch8
pocket7.Length = 6
pocket7.Reversed = True

sketch9 = body.newObject("Sketcher::SketchObject", "Sketch008")
sketch9.AttachmentSupport = (doc.getObject("XZ_Plane"), [""])
sketch9.MapMode = "FlatFace"
sketch9.AttachmentOffset = App.Placement(Vector(0, 0, -6), App.Rotation())
sketch9.addGeometry([
    Part.LineSegment(Vector(137.2, -88.2, 0), Vector(137.2, -87.2, 0)),
    Part.LineSegment(Vector(137.2, -87.2, 0), Vector(132.2, -87.2, 0)),
    Part.LineSegment(Vector(132.2, -87.2, 0), Vector(132.2, -83.2, 0)),
    Part.LineSegment(Vector(132.2, -83.2, 0), Vector(137.2, -83.2, 0)),
    Part.LineSegment(Vector(137.2, -83.2, 0), Vector(137.2, -82.2, 0)),
    Part.LineSegment(Vector(137.2, -82.2, 0), Vector(140.2, -82.2, 0)),
    Part.LineSegment(Vector(140.2, -82.2, 0), Vector(140.2, -83.2, 0)),
    Part.LineSegment(Vector(140.2, -83.2, 0), Vector(146.2, -83.2, 0)),
    Part.LineSegment(Vector(146.2, -83.2, 0), Vector(146.2, -70.2, 0)),
    Part.LineSegment(Vector(146.2, -70.2, 0), Vector(149.2, -70.2, 0)),
    Part.LineSegment(Vector(149.2, -70.2, 0), Vector(149.2, -100.2, 0)),
    Part.LineSegment(Vector(149.2, -100.2, 0), Vector(146.2, -100.2, 0)),
    Part.LineSegment(Vector(146.2, -100.2, 0), Vector(146.2, -87.2, 0)),
    Part.LineSegment(Vector(146.2, -87.2, 0), Vector(140.2, -87.2, 0)),
    Part.LineSegment(Vector(140.2, -87.2, 0), Vector(140.2, -88.2, 0)),
    Part.LineSegment(Vector(140.2, -88.2, 0), Vector(137.2, -88.2, 0)),
    Part.LineSegment(Vector(146.2, -130.2, 0), Vector(146.2, -115.2, 0)),
    Part.LineSegment(Vector(146.2, -115.2, 0), Vector(149.2, -115.2, 0)),
    Part.LineSegment(Vector(149.2, -115.2, 0), Vector(149.2, -130.2, 0)),
    Part.LineSegment(Vector(149.2, -130.2, 0), Vector(146.2, -130.2, 0)),
    Part.LineSegment(Vector(146.2, -160.2, 0), Vector(146.2, -145.2, 0)),
    Part.LineSegment(Vector(146.2, -145.2, 0), Vector(149.2, -145.2, 0)),
    Part.LineSegment(Vector(149.2, -145.2, 0), Vector(149.2, -160.2, 0)),
    Part.LineSegment(Vector(149.2, -160.2, 0), Vector(146.2, -160.2, 0)),
    Part.LineSegment(Vector(146.2, -196.2, 0), Vector(146.2, -175.2, 0)),
    Part.LineSegment(Vector(146.2, -175.2, 0), Vector(149.2, -175.2, 0)),
    Part.LineSegment(Vector(149.2, -175.2, 0), Vector(149.2, -196.2, 0)),
    Part.LineSegment(Vector(149.2, -196.2, 0), Vector(146.2, -196.2, 0)),
    Part.LineSegment(Vector(146.2, -55.2, 0), Vector(146.2, -40.2, 0)),
    Part.LineSegment(Vector(146.2, -40.2, 0), Vector(149.2, -40.2, 0)),
    Part.LineSegment(Vector(149.2, -40.2, 0), Vector(149.2, -55.2, 0)),
    Part.LineSegment(Vector(149.2, -55.2, 0), Vector(146.2, -55.2, 0)),
    Part.LineSegment(Vector(146.2, -25.2, 0), Vector(146.2, -10.2, 0)),
    Part.LineSegment(Vector(146.2, -10.2, 0), Vector(149.2, -10.2, 0)),
    Part.LineSegment(Vector(149.2, -10.2, 0), Vector(149.2, -25.2, 0)),
    Part.LineSegment(Vector(149.2, -25.2, 0), Vector(146.2, -25.2, 0)),
    Part.LineSegment(Vector(146.2, 4.8, 0), Vector(146.2, 25.8, 0)),
    Part.LineSegment(Vector(146.2, 25.8, 0), Vector(149.2, 25.8, 0)),
    Part.LineSegment(Vector(149.2, 25.8, 0), Vector(149.2, 4.8, 0)),
    Part.LineSegment(Vector(149.2, 4.8, 0), Vector(146.2, 4.8, 0)),
], False)
sketch9.addConstraint([
    Sketcher.Constraint("Coincident", 0, 2, 1, 1),
    Sketcher.Constraint("Coincident", 1, 2, 2, 1),
    Sketcher.Constraint("Coincident", 2, 2, 3, 1),
    Sketcher.Constraint("Coincident", 3, 2, 4, 1),
    Sketcher.Constraint("Coincident", 4, 2, 5, 1),
    Sketcher.Constraint("Coincident", 5, 2, 6, 1),
    Sketcher.Constraint("Coincident", 6, 2, 7, 1),
    Sketcher.Constraint("Coincident", 7, 2, 8, 1),
    Sketcher.Constraint("Coincident", 8, 2, 9, 1),
    Sketcher.Constraint("Coincident", 9, 2, 10, 1),
    Sketcher.Constraint("Coincident", 10, 2, 11, 1),
    Sketcher.Constraint("Coincident", 11, 2, 12, 1),
    Sketcher.Constraint("Coincident", 12, 2, 13, 1),
    Sketcher.Constraint("Coincident", 13, 2, 14, 1),
    Sketcher.Constraint("Coincident", 14, 2, 15, 1),
    Sketcher.Constraint("Coincident", 15, 2, 0, 1),
    Sketcher.Constraint("Coincident", 16, 2, 17, 1),
    Sketcher.Constraint("Coincident", 17, 2, 18, 1),
    Sketcher.Constraint("Coincident", 18, 2, 19, 1),
    Sketcher.Constraint("Coincident", 19, 2, 16, 1),
    Sketcher.Constraint("Coincident", 20, 2, 21, 1),
    Sketcher.Constraint("Coincident", 21, 2, 22, 1),
    Sketcher.Constraint("Coincident", 22, 2, 23, 1),
    Sketcher.Constraint("Coincident", 23, 2, 20, 1),
    Sketcher.Constraint("Coincident", 24, 2, 25, 1),
    Sketcher.Constraint("Coincident", 25, 2, 26, 1),
    Sketcher.Constraint("Coincident", 26, 2, 27, 1),
    Sketcher.Constraint("Coincident", 27, 2, 24, 1),
    Sketcher.Constraint("Coincident", 28, 2, 29, 1),
    Sketcher.Constraint("Coincident", 29, 2, 30, 1),
    Sketcher.Constraint("Coincident", 30, 2, 31, 1),
    Sketcher.Constraint("Coincident", 31, 2, 28, 1),
    Sketcher.Constraint("Coincident", 32, 2, 33, 1),
    Sketcher.Constraint("Coincident", 33, 2, 34, 1),
    Sketcher.Constraint("Coincident", 34, 2, 35, 1),
    Sketcher.Constraint("Coincident", 35, 2, 32, 1),
    Sketcher.Constraint("Coincident", 36, 2, 37, 1),
    Sketcher.Constraint("Coincident", 37, 2, 38, 1),
    Sketcher.Constraint("Coincident", 38, 2, 39, 1),
    Sketcher.Constraint("Coincident", 39, 2, 36, 1),
    Sketcher.Constraint("Vertical", 0),
    Sketcher.Constraint("Horizontal", 1),
    Sketcher.Constraint("Vertical", 2),
    Sketcher.Constraint("Horizontal", 3),
    Sketcher.Constraint("Vertical", 4),
    Sketcher.Constraint("Horizontal", 5),
    Sketcher.Constraint("Vertical", 6),
    Sketcher.Constraint("Horizontal", 7),
    Sketcher.Constraint("Vertical", 8),
    Sketcher.Constraint("Horizontal", 9),
    Sketcher.Constraint("Vertical", 10),
    Sketcher.Constraint("Horizontal", 11),
    Sketcher.Constraint("Vertical", 12),
    Sketcher.Constraint("Horizontal", 13),
    Sketcher.Constraint("Vertical", 14),
    Sketcher.Constraint("Horizontal", 15),
    Sketcher.Constraint("Vertical", 16),
    Sketcher.Constraint("Horizontal", 17),
    Sketcher.Constraint("Vertical", 18),
    Sketcher.Constraint("Horizontal", 19),
    Sketcher.Constraint("Vertical", 20),
    Sketcher.Constraint("Horizontal", 21),
    Sketcher.Constraint("Vertical", 22),
    Sketcher.Constraint("Horizontal", 23),
    Sketcher.Constraint("Vertical", 24),
    Sketcher.Constraint("Horizontal", 25),
    Sketcher.Constraint("Vertical", 26),
    Sketcher.Constraint("Horizontal", 27),
    Sketcher.Constraint("Vertical", 28),
    Sketcher.Constraint("Horizontal", 29),
    Sketcher.Constraint("Vertical", 30),
    Sketcher.Constraint("Horizontal", 31),
    Sketcher.Constraint("Vertical", 32),
    Sketcher.Constraint("Horizontal", 33),
    Sketcher.Constraint("Vertical", 34),
    Sketcher.Constraint("Horizontal", 35),
    Sketcher.Constraint("Vertical", 36),
    Sketcher.Constraint("Horizontal", 37),
    Sketcher.Constraint("Vertical", 38),
    Sketcher.Constraint("Horizontal", 39),
    Sketcher.Constraint("Horizontal", 3, 2, 6, 2),
    Sketcher.Constraint("Horizontal", 1, 2, 12, 2),
    Sketcher.Constraint("Vertical", 0, 2, 3, 2),
    Sketcher.Constraint("Vertical", 8, 2, 11, 2),
    Sketcher.Constraint("Vertical", 6, 2, 13, 2),
    Sketcher.Constraint("Vertical", 12, 2, 16, 2),
    Sketcher.Constraint("Vertical", 10, 2, 17, 2),
    Sketcher.Constraint("Vertical", 19, 2, 20, 2),
    Sketcher.Constraint("Vertical", 18, 2, 21, 2),
    Sketcher.Constraint("Vertical", 23, 2, 24, 2),
    Sketcher.Constraint("Vertical", 22, 2, 25, 2),
    Sketcher.Constraint("Vertical", 27, 2, 28, 2),
    Sketcher.Constraint("Vertical", 26, 2, 29, 2),
    Sketcher.Constraint("Vertical", 31, 2, 32, 2),
    Sketcher.Constraint("Vertical", 30, 2, 33, 2),
    Sketcher.Constraint("Vertical", 35, 2, 36, 2),
    Sketcher.Constraint("Vertical", 34, 2, 37, 2),
    Sketcher.Constraint("Equal", 5, 9),
    Sketcher.Constraint("Equal", 0, 4),
    Sketcher.Constraint("Equal", 8, 12),
    Sketcher.Constraint("Equal", 18, 20),
    Sketcher.Constraint("Equal", 22, 28),
    Sketcher.Constraint("Equal", 30, 32),
    Sketcher.Constraint("Equal", 26, 36),
    Sketcher.Constraint("DistanceX", 1, 2, 1, 1, Q("5 mm")),
    Sketcher.Constraint("DistanceX", 5, 1, 5, 2, Q("3 mm")),
    Sketcher.Constraint("DistanceX", 7, 1, 7, 2, Q("6 mm")),
    Sketcher.Constraint("DistanceY", 0, 1, 0, 2, Q("1 mm")),
    Sketcher.Constraint("DistanceY", 2, 1, 2, 2, Q("4 mm")),
    Sketcher.Constraint("DistanceY", 8, 1, 8, 2, Q("13 mm")),
    Sketcher.Constraint("DistanceY", 16, 1, 16, 2, Q("15 mm")),
    Sketcher.Constraint("DistanceY", 24, 1, 24, 2, Q("21 mm")),
    Sketcher.Constraint("DistanceY", 16, 2, 11, 2, Q("15 mm")),
    Sketcher.Constraint("DistanceY", 20, 2, 19, 2, Q("15 mm")),
    Sketcher.Constraint("DistanceY", 24, 2, 23, 2, Q("15 mm")),
    Sketcher.Constraint("DistanceY", 8, 2, 28, 2, Q("30 mm")),
    Sketcher.Constraint("DistanceY", 28, 2, 32, 2, Q("30 mm")),
    Sketcher.Constraint("DistanceY", 32, 2, 36, 2, Q("36 mm")),
    Sketcher.Constraint("DistanceX", -1, 1, 0, 2, Q("137.245977 mm")),
    Sketcher.Constraint("DistanceY", 0, 2, -1, 1, Q("87.245977 mm")),
])
pocket8 = body.newObject("PartDesign::Pocket", "Pocket007")
pocket8.Profile = sketch9
pocket8.Length = 6
pocket8.Reversed = True

sketch10 = body.newObject("Sketcher::SketchObject", "Sketch009")
sketch10.AttachmentSupport = (doc.getObject("XZ_Plane"), [""])
sketch10.MapMode = "FlatFace"
sketch10.AttachmentOffset = App.Placement(Vector(0, 0, -6), App.Rotation())
sketch10.addGeometry([
    Part.LineSegment(Vector(-41, -85, 0), Vector(-71, -135, 0)),
    Part.LineSegment(Vector(-71, -135, 0), Vector(-71, -35, 0)),
    Part.LineSegment(Vector(-71, -35, 0), Vector(-41, -85, 0)),
], False)
sketch10.addConstraint([
    Sketcher.Constraint("Coincident", 0, 2, 1, 1),
    Sketcher.Constraint("Coincident", 1, 2, 2, 1),
    Sketcher.Constraint("Coincident", 2, 2, 0, 1),
    Sketcher.Constraint("Vertical", 1),
    Sketcher.Constraint("Equal", 0, 2),
    Sketcher.Constraint("DistanceY", 1, 1, 1, 2, Q("100 mm")),
    Sketcher.Constraint("DistanceX", 0, 2, 2, 2, Q("30 mm")),
    Sketcher.Constraint("DistanceX", 0, 2, -1, 1, Q("70.754023 mm")),
    Sketcher.Constraint("DistanceY", 0, 2, -1, 1, Q("135.245977 mm")),
])
pocket9 = body.newObject("PartDesign::Pocket", "Pocket008")
pocket9.Profile = sketch10
pocket9.Length = 6
pocket9.Reversed = True
doc.recompute()

fillet2 = body.newObject("PartDesign::Fillet", "Fillet001")
fillet2.Base = (pocket9, edges_at(pocket9, [(-70.754, 3, -35.246), (-70.754, 3, -135.246), (-40.754, 3, -85.246)]))
fillet2.Radius = 60

doc.recompute()
